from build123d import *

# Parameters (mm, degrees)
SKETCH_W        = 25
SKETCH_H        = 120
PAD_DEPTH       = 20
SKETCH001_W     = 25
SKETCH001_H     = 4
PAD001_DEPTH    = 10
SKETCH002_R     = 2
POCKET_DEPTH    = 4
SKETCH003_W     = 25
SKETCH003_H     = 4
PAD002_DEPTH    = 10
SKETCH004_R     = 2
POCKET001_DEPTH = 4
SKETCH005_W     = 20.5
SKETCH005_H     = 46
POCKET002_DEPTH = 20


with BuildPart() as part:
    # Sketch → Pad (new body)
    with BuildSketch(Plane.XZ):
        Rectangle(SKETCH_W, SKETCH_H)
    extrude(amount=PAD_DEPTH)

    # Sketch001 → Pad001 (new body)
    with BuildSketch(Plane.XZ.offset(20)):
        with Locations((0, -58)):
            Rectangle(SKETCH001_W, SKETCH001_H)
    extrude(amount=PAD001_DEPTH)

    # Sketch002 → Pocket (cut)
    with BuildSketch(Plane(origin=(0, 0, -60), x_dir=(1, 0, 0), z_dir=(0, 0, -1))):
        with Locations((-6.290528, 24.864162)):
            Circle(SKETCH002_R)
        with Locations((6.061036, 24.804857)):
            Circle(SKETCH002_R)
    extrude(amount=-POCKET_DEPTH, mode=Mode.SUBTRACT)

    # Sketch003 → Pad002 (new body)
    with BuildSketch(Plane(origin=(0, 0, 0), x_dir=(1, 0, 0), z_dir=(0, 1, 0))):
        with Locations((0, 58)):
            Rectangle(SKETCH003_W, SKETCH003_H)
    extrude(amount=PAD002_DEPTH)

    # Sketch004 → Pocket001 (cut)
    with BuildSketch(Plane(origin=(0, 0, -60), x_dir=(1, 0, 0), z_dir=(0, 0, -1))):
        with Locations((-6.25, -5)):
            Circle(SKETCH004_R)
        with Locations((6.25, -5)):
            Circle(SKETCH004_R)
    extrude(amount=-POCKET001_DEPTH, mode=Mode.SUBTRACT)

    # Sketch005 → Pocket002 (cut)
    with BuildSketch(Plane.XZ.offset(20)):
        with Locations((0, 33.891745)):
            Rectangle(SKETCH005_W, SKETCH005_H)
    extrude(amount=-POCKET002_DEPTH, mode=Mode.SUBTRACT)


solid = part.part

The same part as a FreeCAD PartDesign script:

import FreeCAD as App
import Part
import Sketcher
from FreeCAD import Vector

doc = App.newDocument("Part")
body = doc.addObject("PartDesign::Body", "Body")

# Sketch on XZ plane
sketch1 = doc.addObject("Sketcher::SketchObject", "Sketch")
body.addObject(sketch1)
sketch1.AttachmentSupport = (doc.XZ_Plane, [""])
sketch1.MapMode = "FlatFace"
sketch1.addGeometry(Part.LineSegment(Vector(-12, 60, 0), Vector(-12, -60, 0)), False)
sketch1.addGeometry(Part.LineSegment(Vector(-12, -60, 0), Vector(12, -60, 0)), False)
sketch1.addGeometry(Part.LineSegment(Vector(12, -60, 0), Vector(12, 60, 0)), False)
sketch1.addGeometry(Part.LineSegment(Vector(12, 60, 0), Vector(-12, 60, 0)), False)
sketch1.addConstraint(Sketcher.Constraint("Coincident", 0, 2, 1, 1))
sketch1.addConstraint(Sketcher.Constraint("Coincident", 1, 2, 2, 1))
sketch1.addConstraint(Sketcher.Constraint("Coincident", 2, 2, 3, 1))
sketch1.addConstraint(Sketcher.Constraint("Coincident", 3, 2, 0, 1))
sketch1.addConstraint(Sketcher.Constraint("Vertical", 0))
sketch1.addConstraint(Sketcher.Constraint("Horizontal", 1))
sketch1.addConstraint(Sketcher.Constraint("Vertical", 2))
sketch1.addConstraint(Sketcher.Constraint("Horizontal", 3))
sketch1.addConstraint(Sketcher.Constraint("Symmetric", 0, 2, 2, 2, -1, 1))
sketch1.addConstraint(Sketcher.Constraint("DistanceX", 1, 1, 1, 2, 25.0))
sketch1.addConstraint(Sketcher.Constraint("DistanceY", 0, 2, 0, 1, 120.0))
pad1 = doc.addObject("PartDesign::Pad", "Pad")
body.addObject(pad1)
pad1.Profile = sketch1
pad1.Length = 20

# Sketch on XZ plane
sketch2 = doc.addObject("Sketcher::SketchObject", "Sketch001")
body.addObject(sketch2)
sketch2.AttachmentSupport = (doc.XZ_Plane, [""])
sketch2.MapMode = "FlatFace"
sketch2.AttachmentOffset = App.Placement(Vector(0, 0, 20), App.Rotation())
sketch2.addGeometry(Part.LineSegment(Vector(-12.5, -56, 0), Vector(-12.5, -60, 0)), False)
sketch2.addGeometry(Part.LineSegment(Vector(-12.5, -60, 0), Vector(12.5, -60, 0)), False)
sketch2.addGeometry(Part.LineSegment(Vector(12.5, -60, 0), Vector(12.5, -56, 0)), False)
sketch2.addGeometry(Part.LineSegment(Vector(12.5, -56, 0), Vector(-12.5, -56, 0)), False)
sketch2.addConstraint(Sketcher.Constraint("Coincident", 0, 2, 1, 1))
sketch2.addConstraint(Sketcher.Constraint("Coincident", 1, 2, 2, 1))
sketch2.addConstraint(Sketcher.Constraint("Coincident", 2, 2, 3, 1))
sketch2.addConstraint(Sketcher.Constraint("Coincident", 3, 2, 0, 1))
sketch2.addConstraint(Sketcher.Constraint("Vertical", 0))
sketch2.addConstraint(Sketcher.Constraint("Horizontal", 1))
sketch2.addConstraint(Sketcher.Constraint("Vertical", 2))
sketch2.addConstraint(Sketcher.Constraint("Horizontal", 3))
sketch2.addConstraint(Sketcher.Constraint("DistanceX", 1, 1, 1, 2, 25.0))
sketch2.addConstraint(Sketcher.Constraint("DistanceY", 0, 2, 0, 1, 4.0))
sketch2.addConstraint(Sketcher.Constraint("DistanceY", 0, 2, -1, 1, 60.0))
sketch2.addConstraint(Sketcher.Constraint("DistanceX", 0, 2, -1, 1, 12.5))
pad2 = doc.addObject("PartDesign::Pad", "Pad001")
body.addObject(pad2)
pad2.Profile = sketch2
pad2.Length = 10

# Sketch on XY plane
sketch3 = doc.addObject("Sketcher::SketchObject", "Sketch002")
body.addObject(sketch3)
sketch3.AttachmentSupport = (doc.XY_Plane, [""])
sketch3.MapMode = "FlatFace"
sketch3.AttachmentOffset = App.Placement(Vector(0, 0, -60), App.Rotation())
sketch3.addGeometry(Part.Circle(Vector(-6.3, -24.9, 0), Vector(0, 0, 1), 2), False)
sketch3.addGeometry(Part.Circle(Vector(6.1, -24.8, 0), Vector(0, 0, 1), 2), False)
sketch3.addConstraint(Sketcher.Constraint("Equal", 0, 1))
sketch3.addConstraint(Sketcher.Constraint("Diameter", 0, 4.0))
sketch3.addConstraint(Sketcher.Constraint("DistanceX", 0, 3, -1, 1, 6.290528))
sketch3.addConstraint(Sketcher.Constraint("DistanceY", 0, 3, -1, 1, 24.864162))
sketch3.addConstraint(Sketcher.Constraint("DistanceX", -1, 1, 1, 3, 6.061036))
sketch3.addConstraint(Sketcher.Constraint("DistanceY", 1, 3, -1, 1, 24.804857))
pocket1 = doc.addObject("PartDesign::Pocket", "Pocket")
body.addObject(pocket1)
pocket1.Profile = sketch3
pocket1.Length = 4
pocket1.Reversed = True

# Sketch on XZ plane
sketch4 = doc.addObject("Sketcher::SketchObject", "Sketch003")
body.addObject(sketch4)
sketch4.AttachmentSupport = (doc.XZ_Plane, [""])
sketch4.MapMode = "FlatFace"
sketch4.addGeometry(Part.LineSegment(Vector(-12.5, -60, 0), Vector(-12.5, -56, 0)), False)
sketch4.addGeometry(Part.LineSegment(Vector(-12.5, -56, 0), Vector(12.5, -56, 0)), False)
sketch4.addGeometry(Part.LineSegment(Vector(12.5, -56, 0), Vector(12.5, -60, 0)), False)
sketch4.addGeometry(Part.LineSegment(Vector(12.5, -60, 0), Vector(-12.5, -60, 0)), False)
sketch4.addConstraint(Sketcher.Constraint("Coincident", 0, 2, 1, 1))
sketch4.addConstraint(Sketcher.Constraint("Coincident", 1, 2, 2, 1))
sketch4.addConstraint(Sketcher.Constraint("Coincident", 2, 2, 3, 1))
sketch4.addConstraint(Sketcher.Constraint("Coincident", 3, 2, 0, 1))
sketch4.addConstraint(Sketcher.Constraint("Vertical", 0))
sketch4.addConstraint(Sketcher.Constraint("Horizontal", 1))
sketch4.addConstraint(Sketcher.Constraint("Vertical", 2))
sketch4.addConstraint(Sketcher.Constraint("Horizontal", 3))
sketch4.addConstraint(Sketcher.Constraint("DistanceX", 1, 1, 1, 2, 25.0))
sketch4.addConstraint(Sketcher.Constraint("DistanceY", 0, 1, 0, 2, 4.0))
sketch4.addConstraint(Sketcher.Constraint("DistanceY", 0, 2, -1, 1, 56.0))
sketch4.addConstraint(Sketcher.Constraint("DistanceX", 0, 2, -1, 1, 12.5))
pad3 = doc.addObject("PartDesign::Pad", "Pad002")
body.addObject(pad3)
pad3.Profile = sketch4
pad3.Length = 10
pad3.Reversed = True

# Sketch on XY plane
sketch5 = doc.addObject("Sketcher::SketchObject", "Sketch004")
body.addObject(sketch5)
sketch5.AttachmentSupport = (doc.XY_Plane, [""])
sketch5.MapMode = "FlatFace"
sketch5.AttachmentOffset = App.Placement(Vector(0, 0, -60), App.Rotation())
sketch5.addGeometry(Part.Circle(Vector(-6.2, 5, 0), Vector(0, 0, 1), 2), False)
sketch5.addGeometry(Part.Circle(Vector(6.2, 5, 0), Vector(0, 0, 1), 2), False)
sketch5.addConstraint(Sketcher.Constraint("Equal", 0, 1))
sketch5.addConstraint(Sketcher.Constraint("Symmetric", 0, 3, 1, 3, -2))
sketch5.addConstraint(Sketcher.Constraint("Diameter", 0, 4.0))
sketch5.addConstraint(Sketcher.Constraint("DistanceY", -1, 1, 0, 3, 5.0))
sketch5.addConstraint(Sketcher.Constraint("DistanceX", 0, 3, 1, 3, 12.5))
pocket2 = doc.addObject("PartDesign::Pocket", "Pocket001")
body.addObject(pocket2)
pocket2.Profile = sketch5
pocket2.Length = 4
pocket2.Reversed = True

# Sketch on XZ plane
sketch6 = doc.addObject("Sketcher::SketchObject", "Sketch005")
body.addObject(sketch6)
sketch6.AttachmentSupport = (doc.XZ_Plane, [""])
sketch6.MapMode = "FlatFace"
sketch6.AttachmentOffset = App.Placement(Vector(0, 0, 20), App.Rotation())
sketch6.addGeometry(Part.LineSegment(Vector(-10, 57, 0), Vector(-10, 11, 0)), False)
sketch6.addGeometry(Part.LineSegment(Vector(-10, 11, 0), Vector(10, 11, 0)), False)
sketch6.addGeometry(Part.LineSegment(Vector(10, 11, 0), Vector(10, 57, 0)), False)
sketch6.addGeometry(Part.LineSegment(Vector(10, 57, 0), Vector(-10, 57, 0)), False)
sketch6.addConstraint(Sketcher.Constraint("Coincident", 0, 2, 1, 1))
sketch6.addConstraint(Sketcher.Constraint("Coincident", 1, 2, 2, 1))
sketch6.addConstraint(Sketcher.Constraint("Coincident", 2, 2, 3, 1))
sketch6.addConstraint(Sketcher.Constraint("Coincident", 3, 2, 0, 1))
sketch6.addConstraint(Sketcher.Constraint("Vertical", 0))
sketch6.addConstraint(Sketcher.Constraint("Horizontal", 1))
sketch6.addConstraint(Sketcher.Constraint("Vertical", 2))
sketch6.addConstraint(Sketcher.Constraint("Horizontal", 3))
sketch6.addConstraint(Sketcher.Constraint("DistanceY", 0, 2, 0, 1, 46.0))
sketch6.addConstraint(Sketcher.Constraint("DistanceX", 1, 1, 1, 2, 20.5))
sketch6.addConstraint(Sketcher.Constraint("DistanceX", 0, 2, -1, 1, 10.25))
sketch6.addConstraint(Sketcher.Constraint("DistanceY", -1, 1, 0, 2, 10.891745))
pocket3 = doc.addObject("PartDesign::Pocket", "Pocket002")
body.addObject(pocket3)
pocket3.Profile = sketch6
pocket3.Length = 20

doc.recompute()
